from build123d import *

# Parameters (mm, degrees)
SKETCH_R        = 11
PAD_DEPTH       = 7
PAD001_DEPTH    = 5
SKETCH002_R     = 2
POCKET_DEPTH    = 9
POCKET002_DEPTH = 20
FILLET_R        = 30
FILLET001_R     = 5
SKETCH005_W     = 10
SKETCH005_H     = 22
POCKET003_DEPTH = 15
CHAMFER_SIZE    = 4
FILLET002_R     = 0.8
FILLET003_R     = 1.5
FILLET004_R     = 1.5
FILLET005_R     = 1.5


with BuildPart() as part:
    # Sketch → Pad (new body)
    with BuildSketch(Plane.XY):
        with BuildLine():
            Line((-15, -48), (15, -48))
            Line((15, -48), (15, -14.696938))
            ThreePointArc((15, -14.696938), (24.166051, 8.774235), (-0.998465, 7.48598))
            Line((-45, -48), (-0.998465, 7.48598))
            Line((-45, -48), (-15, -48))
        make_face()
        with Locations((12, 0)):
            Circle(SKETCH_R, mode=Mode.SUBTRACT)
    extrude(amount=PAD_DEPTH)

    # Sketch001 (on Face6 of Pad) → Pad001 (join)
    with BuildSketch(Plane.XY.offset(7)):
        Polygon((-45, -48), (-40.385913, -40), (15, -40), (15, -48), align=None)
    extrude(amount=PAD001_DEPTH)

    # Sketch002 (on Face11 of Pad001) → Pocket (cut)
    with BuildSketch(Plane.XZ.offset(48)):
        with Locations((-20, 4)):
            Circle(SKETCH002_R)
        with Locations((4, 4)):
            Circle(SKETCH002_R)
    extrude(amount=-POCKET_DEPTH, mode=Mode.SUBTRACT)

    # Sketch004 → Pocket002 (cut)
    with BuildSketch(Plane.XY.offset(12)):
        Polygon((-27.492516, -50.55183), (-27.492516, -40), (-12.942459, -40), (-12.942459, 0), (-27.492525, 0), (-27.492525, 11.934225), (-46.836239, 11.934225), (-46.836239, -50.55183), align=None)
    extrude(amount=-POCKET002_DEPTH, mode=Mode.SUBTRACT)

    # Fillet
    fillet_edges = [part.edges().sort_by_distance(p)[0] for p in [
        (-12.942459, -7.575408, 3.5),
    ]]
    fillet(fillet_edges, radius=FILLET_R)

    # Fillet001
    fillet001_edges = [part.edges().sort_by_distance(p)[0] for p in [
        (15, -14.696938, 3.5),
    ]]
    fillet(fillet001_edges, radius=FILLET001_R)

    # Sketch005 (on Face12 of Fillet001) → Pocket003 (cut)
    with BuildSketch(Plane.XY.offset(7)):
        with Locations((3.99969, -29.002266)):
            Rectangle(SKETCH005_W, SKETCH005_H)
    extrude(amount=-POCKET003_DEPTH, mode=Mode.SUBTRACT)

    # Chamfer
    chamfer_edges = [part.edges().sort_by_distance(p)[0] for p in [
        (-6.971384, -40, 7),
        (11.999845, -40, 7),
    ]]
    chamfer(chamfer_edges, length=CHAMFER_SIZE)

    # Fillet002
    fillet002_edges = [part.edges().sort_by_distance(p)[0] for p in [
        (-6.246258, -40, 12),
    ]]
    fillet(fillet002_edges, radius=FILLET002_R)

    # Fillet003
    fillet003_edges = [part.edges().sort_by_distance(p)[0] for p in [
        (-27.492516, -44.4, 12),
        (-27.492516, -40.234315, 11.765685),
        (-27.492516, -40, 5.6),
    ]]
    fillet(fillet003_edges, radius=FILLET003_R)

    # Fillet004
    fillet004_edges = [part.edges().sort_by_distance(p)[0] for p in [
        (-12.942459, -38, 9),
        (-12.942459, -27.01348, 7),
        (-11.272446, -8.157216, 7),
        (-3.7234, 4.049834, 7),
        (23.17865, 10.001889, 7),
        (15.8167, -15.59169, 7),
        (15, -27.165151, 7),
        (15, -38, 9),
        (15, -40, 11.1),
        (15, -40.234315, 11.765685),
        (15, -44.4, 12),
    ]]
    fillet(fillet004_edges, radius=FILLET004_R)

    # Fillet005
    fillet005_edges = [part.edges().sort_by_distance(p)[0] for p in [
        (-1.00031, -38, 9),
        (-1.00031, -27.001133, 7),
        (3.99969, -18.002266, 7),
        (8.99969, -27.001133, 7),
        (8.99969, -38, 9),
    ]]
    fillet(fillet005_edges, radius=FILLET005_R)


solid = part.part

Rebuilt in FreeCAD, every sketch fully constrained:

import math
import FreeCAD as App
import Part
import Sketcher

V = App.Vector


def edges_at(feature, points):
    """Names of the edges that pass closest to the given points."""
    edges = feature.Shape.Edges
    near = lambda p: min(range(len(edges)), key=lambda i: edges[i].distToShape(Part.Vertex(*p))[0])
    return sorted({f"Edge{near(p) + 1}" for p in points})


def add_polygon(sketch, points):
    """Adds a closed chain of lines whose ends are joined by coincident constraints."""
    first, n = sketch.GeometryCount, len(points)
    for a, b in zip(points, points[1:] + points[:1]):
        sketch.addGeometry(Part.LineSegment(App.Vector(*a, 0), App.Vector(*b, 0)), False)
    for i in range(n):
        sketch.addConstraint(Sketcher.Constraint("Coincident", first + i, 2, first + (i + 1) % n, 1))

doc = App.newDocument("Part")
body = doc.addObject("PartDesign::Body", "Body")

# Sketch on XY plane
sketch1 = body.newObject("Sketcher::SketchObject", "Sketch")
sketch1.AttachmentSupport = (doc.getObject("XY_Plane"), [""])
sketch1.MapMode = "FlatFace"
sketch1.addGeometry(Part.LineSegment(V(15, -48, 0), V(15, -15, 0)), False)
sketch1.addGeometry(Part.ArcOfCircle(Part.Circle(V(12, 0, 0), V(0, 0, 1), 15), math.radians(-78), math.radians(150)), False)
sketch1.addGeometry(Part.LineSegment(V(-1, 7, 0), V(-45, -48, 0)), False)
sketch1.addGeometry(Part.LineSegment(V(-45, -48, 0), V(15, -48, 0)), False)
sketch1.addGeometry(Part.Circle(V(12, 0, 0), V(0, 0, 1), 11), False)
sketch1.addConstraint(Sketcher.Constraint("Coincident", 0, 2, 1, 1))
sketch1.addConstraint(Sketcher.Constraint("Coincident", 1, 2, 2, 1))
sketch1.addConstraint(Sketcher.Constraint("Coincident", 2, 2, 3, 1))
sketch1.addConstraint(Sketcher.Constraint("Coincident", 3, 2, 0, 1))
sketch1.addConstraint(Sketcher.Constraint("Vertical", 0))
sketch1.addConstraint(Sketcher.Constraint("Horizontal", 3))
sketch1.addConstraint(Sketcher.Constraint("Coincident", 4, 3, 1, 3))
sketch1.addConstraint(Sketcher.Constraint("PointOnObject", 1, 3, -1))
sketch1.addConstraint(Sketcher.Constraint("Diameter", 4, 22.0))
sketch1.addConstraint(Sketcher.Constraint("Radius", 1, 15.0))
sketch1.addConstraint(Sketcher.Constraint("DistanceX", 3, 1, 3, 2, 60.0))
sketch1.addConstraint(Sketcher.Constraint("DistanceX", -1, 1, 1, 3, 12.0))
sketch1.addConstraint(Sketcher.Constraint("DistanceX", -1, 1, 0, 2, 15.0))
sketch1.addConstraint(Sketcher.Constraint("DistanceY", 2, 2, -1, 1, 48.0))
sketch1.addConstraint(Sketcher.Constraint("DistanceY", -1, 1, 1, 2, 7.48598))
pad1 = body.newObject("PartDesign::Pad", "Pad")
pad1.Profile = sketch1
pad1.Length = 7

# Sketch on XY plane
sketch2 = body.newObject("Sketcher::SketchObject", "Sketch001")
sketch2.AttachmentSupport = (doc.getObject("XY_Plane"), [""])
sketch2.MapMode = "FlatFace"
sketch2.AttachmentOffset = App.Placement(V(0, 0, 7), App.Rotation())
add_polygon(sketch2, [(-40, -40), (-45, -48), (15, -48), (15, -40)])  # lines 0-3
sketch2.addConstraint(Sketcher.Constraint("Horizontal", 1))
sketch2.addConstraint(Sketcher.Constraint("Vertical", 2))
sketch2.addConstraint(Sketcher.Constraint("Horizontal", 3))
sketch2.addConstraint(Sketcher.Constraint("DistanceX", 1, 1, 1, 2, 60.0))
sketch2.addConstraint(Sketcher.Constraint("DistanceY", 2, 1, 2, 2, 8.0))
sketch2.addConstraint(Sketcher.Constraint("DistanceX", 0, 2, -1, 1, 45.0))
sketch2.addConstraint(Sketcher.Constraint("DistanceY", 0, 2, -1, 1, 48.0))
sketch2.addConstraint(Sketcher.Constraint("DistanceX", 3, 2, 3, 1, 55.385913))
pad2 = body.newObject("PartDesign::Pad", "Pad001")
pad2.Profile = sketch2
pad2.Length = 5

# Sketch on XZ plane
sketch3 = body.newObject("Sketcher::SketchObject", "Sketch002")
sketch3.AttachmentSupport = (doc.getObject("XZ_Plane"), [""])
sketch3.MapMode = "FlatFace"
sketch3.AttachmentOffset = App.Placement(V(0, 0, 48), App.Rotation())
sketch3.addGeometry(Part.Circle(V(-20, 4, 0), V(0, 0, 1), 2), False)
sketch3.addGeometry(Part.Circle(V(4, 4, 0), V(0, 0, 1), 2), False)
sketch3.addConstraint(Sketcher.Constraint("Equal", 0, 1))
sketch3.addConstraint(Sketcher.Constraint("Horizontal", 0, 3, 1, 3))
sketch3.addConstraint(Sketcher.Constraint("Diameter", 0, 4.0))
sketch3.addConstraint(Sketcher.Constraint("DistanceX", 0, 3, -1, 1, 20.0))
sketch3.addConstraint(Sketcher.Constraint("DistanceY", -1, 1, 0, 3, 4.0))
sketch3.addConstraint(Sketcher.Constraint("DistanceX", -1, 1, 1, 3, 4.0))
pocket1 = body.newObject("PartDesign::Pocket", "Pocket")
pocket1.Profile = sketch3
pocket1.Length = 9

# Sketch on XY plane
sketch4 = body.newObject("Sketcher::SketchObject", "Sketch003")
sketch4.AttachmentSupport = (doc.getObject("XY_Plane"), [""])
sketch4.MapMode = "FlatFace"
sketch4.AttachmentOffset = App.Placement(V(0, 0, 12), App.Rotation())
add_polygon(sketch4, [(-27, -51), (-27, -40), (-13, -40), (-13, 0), (-27, 0), (-27, 12), (-47, 12), (-47, -51)])  # lines 0-7
sketch4.addConstraint(Sketcher.Constraint("Vertical", 0))
sketch4.addConstraint(Sketcher.Constraint("Horizontal", 1))
sketch4.addConstraint(Sketcher.Constraint("Vertical", 2))
sketch4.addConstraint(Sketcher.Constraint("Horizontal", 3))
sketch4.addConstraint(Sketcher.Constraint("Vertical", 4))
sketch4.addConstraint(Sketcher.Constraint("Horizontal", 5))
sketch4.addConstraint(Sketcher.Constraint("Vertical", 6))
sketch4.addConstraint(Sketcher.Constraint("Horizontal", 7))
sketch4.addConstraint(Sketcher.Constraint("PointOnObject", 2, 2, -1))
sketch4.addConstraint(Sketcher.Constraint("DistanceY", 2, 1, 2, 2, 40.0))
sketch4.addConstraint(Sketcher.Constraint("DistanceY", 0, 1, 0, 2, 10.55183))
sketch4.addConstraint(Sketcher.Constraint("DistanceX", 1, 1, 1, 2, 14.550057))
sketch4.addConstraint(Sketcher.Constraint("DistanceX", 3, 2, 3, 1, 14.550066))
sketch4.addConstraint(Sketcher.Constraint("DistanceX", 5, 2, 5, 1, 19.343714))
sketch4.addConstraint(Sketcher.Constraint("DistanceY", 4, 1, 4, 2, 11.934225))
sketch4.addConstraint(Sketcher.Constraint("DistanceX", 1, 2, -1, 1, 12.942459))
pocket2 = body.newObject("PartDesign::Pocket", "Pocket001")
pocket2.Profile = sketch4
pocket2.Length = 20
doc.recompute()

fillet = body.newObject("PartDesign::Fillet", "Fillet")
fillet.Base = (pocket2, edges_at(pocket2, [(-12.942, -7.575, 3.5)]))
fillet.Radius = 30
doc.recompute()

fillet2 = body.newObject("PartDesign::Fillet", "Fillet001")
fillet2.Base = (fillet, edges_at(fillet, [(15, -14.697, 3.5)]))
fillet2.Radius = 5

# Sketch on XY plane
sketch5 = body.newObject("Sketcher::SketchObject", "Sketch004")
sketch5.AttachmentSupport = (doc.getObject("XY_Plane"), [""])
sketch5.MapMode = "FlatFace"
sketch5.AttachmentOffset = App.Placement(V(0, 0, 7), App.Rotation())
add_polygon(sketch5, [(-1, -18), (-1, -40), (9, -40), (9, -18)])  # lines 0-3
sketch5.addConstraint(Sketcher.Constraint("Vertical", 0))
sketch5.addConstraint(Sketcher.Constraint("Horizontal", 1))
sketch5.addConstraint(Sketcher.Constraint("Vertical", 2))
sketch5.addConstraint(Sketcher.Constraint("Horizontal", 3))
sketch5.addConstraint(Sketcher.Constraint("DistanceX", 1, 1, 1, 2, 10.0))
sketch5.addConstraint(Sketcher.Constraint("DistanceY", 0, 2, 0, 1, 22.0))
sketch5.addConstraint(Sketcher.Constraint("DistanceX", 0, 2, -1, 1, 1.00031))
sketch5.addConstraint(Sketcher.Constraint("DistanceY", 0, 2, -1, 1, 40.002266))
pocket3 = body.newObject("PartDesign::Pocket", "Pocket002")
pocket3.Profile = sketch5
pocket3.Length = 15
doc.recompute()

chamfer = body.newObject("PartDesign::Chamfer", "Chamfer")
chamfer.Base = (pocket3, edges_at(pocket3, [(-6.971, -40, 7), (12, -40, 7)]))
chamfer.Size = 4
doc.recompute()

fillet3 = body.newObject("PartDesign::Fillet", "Fillet002")
fillet3.Base = (chamfer, edges_at(chamfer, [(-6.246, -40, 12)]))
fillet3.Radius = 0.8
doc.recompute()

fillet4 = body.newObject("PartDesign::Fillet", "Fillet003")
fillet4.Base = (fillet3, edges_at(fillet3, [(-27.493, -44.4, 12), (-27.493, -40.234, 11.766), (-27.493, -40, 5.6)]))
fillet4.Radius = 1.5
doc.recompute()

fillet5 = body.newObject("PartDesign::Fillet", "Fillet004")
fillet5.Base = (fillet4, edges_at(fillet4, [
    (-12.942, -38, 9),
    (-12.942, -27.013, 7),
    (-11.272, -8.157, 7),
    (-3.723, 4.05, 7),
    (23.179, 10.002, 7),
    (15.817, -15.592, 7),
    (15, -27.165, 7),
    (15, -38, 9),
    (15, -40, 11.1),
    (15, -40.234, 11.766),
    (15, -44.4, 12),
]))
fillet5.Radius = 1.5
doc.recompute()

fillet6 = body.newObject("PartDesign::Fillet", "Fillet005")
fillet6.Base = (fillet5, edges_at(fillet5, [
    (-1, -38, 9),
    (-1, -27.001, 7),
    (4, -18.002, 7),
    (9, -27.001, 7),
    (9, -38, 9),
]))
fillet6.Radius = 1.5

doc.recompute()
